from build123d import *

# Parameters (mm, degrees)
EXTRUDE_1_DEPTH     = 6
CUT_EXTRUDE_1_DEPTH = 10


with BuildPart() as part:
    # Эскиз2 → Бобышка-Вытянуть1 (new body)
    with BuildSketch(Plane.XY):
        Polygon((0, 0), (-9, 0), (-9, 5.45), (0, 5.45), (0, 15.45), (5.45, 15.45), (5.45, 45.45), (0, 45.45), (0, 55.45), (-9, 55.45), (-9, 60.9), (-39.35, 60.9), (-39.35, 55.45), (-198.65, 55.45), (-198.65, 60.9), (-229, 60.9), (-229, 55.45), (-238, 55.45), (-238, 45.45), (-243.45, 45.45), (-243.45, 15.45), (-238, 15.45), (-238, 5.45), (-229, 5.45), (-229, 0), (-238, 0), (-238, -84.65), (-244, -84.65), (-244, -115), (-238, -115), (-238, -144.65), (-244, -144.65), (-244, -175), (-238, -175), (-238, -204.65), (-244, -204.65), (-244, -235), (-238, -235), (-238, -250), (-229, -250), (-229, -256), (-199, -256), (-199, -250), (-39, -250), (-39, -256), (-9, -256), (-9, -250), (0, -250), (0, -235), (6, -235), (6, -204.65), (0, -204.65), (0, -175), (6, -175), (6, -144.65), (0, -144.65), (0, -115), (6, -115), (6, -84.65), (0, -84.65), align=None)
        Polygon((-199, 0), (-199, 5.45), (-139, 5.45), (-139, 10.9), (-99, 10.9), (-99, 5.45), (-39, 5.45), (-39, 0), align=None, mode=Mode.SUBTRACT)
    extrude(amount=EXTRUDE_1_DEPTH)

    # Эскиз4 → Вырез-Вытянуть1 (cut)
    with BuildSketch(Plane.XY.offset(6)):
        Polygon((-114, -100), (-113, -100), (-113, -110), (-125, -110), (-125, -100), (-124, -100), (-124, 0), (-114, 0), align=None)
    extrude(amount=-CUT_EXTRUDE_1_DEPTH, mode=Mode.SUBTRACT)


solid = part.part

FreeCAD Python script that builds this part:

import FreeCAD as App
import Part
import Sketcher
from FreeCAD import Vector

doc = App.newDocument("Part")
body = doc.addObject("PartDesign::Body", "Body")

# Sketch on XY plane
sketch1 = body.newObject("Sketcher::SketchObject", "Sketch")
sketch1.AttachmentSupport = (doc.getObject("XY_Plane"), [""])
sketch1.MapMode = "FlatFace"
sketch1.addGeometry([
    Part.LineSegment(Vector(0, 0, 0), Vector(-9, 0, 0)),  # 0
    Part.LineSegment(Vector(-9, 0, 0), Vector(-9, 5, 0)),  # 1
    Part.LineSegment(Vector(-9, 5, 0), Vector(0, 5, 0)),  # 2
    Part.LineSegment(Vector(0, 5, 0), Vector(0, 15, 0)),  # 3
    Part.LineSegment(Vector(0, 15, 0), Vector(5, 15, 0)),  # 4
    Part.LineSegment(Vector(5, 15, 0), Vector(5, 45, 0)),  # 5
    Part.LineSegment(Vector(5, 45, 0), Vector(0, 45, 0)),  # 6
    Part.LineSegment(Vector(0, 45, 0), Vector(0, 55, 0)),  # 7
    Part.LineSegment(Vector(0, 55, 0), Vector(-9, 55, 0)),  # 8
    Part.LineSegment(Vector(-9, 55, 0), Vector(-9, 61, 0)),  # 9
    Part.LineSegment(Vector(-9, 61, 0), Vector(-39, 61, 0)),  # 10
    Part.LineSegment(Vector(-39, 61, 0), Vector(-39, 55, 0)),  # 11
    Part.LineSegment(Vector(-39, 55, 0), Vector(-199, 55, 0)),  # 12
    Part.LineSegment(Vector(-199, 55, 0), Vector(-199, 61, 0)),  # 13
    Part.LineSegment(Vector(-199, 61, 0), Vector(-229, 61, 0)),  # 14
    Part.LineSegment(Vector(-229, 61, 0), Vector(-229, 55, 0)),  # 15
    Part.LineSegment(Vector(-229, 55, 0), Vector(-238, 55, 0)),  # 16
    Part.LineSegment(Vector(-238, 55, 0), Vector(-238, 45, 0)),  # 17
    Part.LineSegment(Vector(-238, 45, 0), Vector(-243, 45, 0)),  # 18
    Part.LineSegment(Vector(-243, 45, 0), Vector(-243, 15, 0)),  # 19
    Part.LineSegment(Vector(-243, 15, 0), Vector(-238, 15, 0)),  # 20
    Part.LineSegment(Vector(-238, 15, 0), Vector(-238, 5, 0)),  # 21
    Part.LineSegment(Vector(-238, 5, 0), Vector(-229, 5, 0)),  # 22
    Part.LineSegment(Vector(-229, 5, 0), Vector(-229, 0, 0)),  # 23
    Part.LineSegment(Vector(-229, 0, 0), Vector(-238, 0, 0)),  # 24
    Part.LineSegment(Vector(-238, 0, 0), Vector(-238, -85, 0)),  # 25
    Part.LineSegment(Vector(-238, -85, 0), Vector(-244, -85, 0)),  # 26
    Part.LineSegment(Vector(-244, -85, 0), Vector(-244, -115, 0)),  # 27
    Part.LineSegment(Vector(-244, -115, 0), Vector(-238, -115, 0)),  # 28
    Part.LineSegment(Vector(-238, -115, 0), Vector(-238, -145, 0)),  # 29
    Part.LineSegment(Vector(-238, -145, 0), Vector(-244, -145, 0)),  # 30
    Part.LineSegment(Vector(-244, -145, 0), Vector(-244, -175, 0)),  # 31
    Part.LineSegment(Vector(-244, -175, 0), Vector(-238, -175, 0)),  # 32
    Part.LineSegment(Vector(-238, -175, 0), Vector(-238, -205, 0)),  # 33
    Part.LineSegment(Vector(-238, -205, 0), Vector(-244, -205, 0)),  # 34
    Part.LineSegment(Vector(-244, -205, 0), Vector(-244, -235, 0)),  # 35
    Part.LineSegment(Vector(-244, -235, 0), Vector(-238, -235, 0)),  # 36
    Part.LineSegment(Vector(-238, -235, 0), Vector(-238, -250, 0)),  # 37
    Part.LineSegment(Vector(-238, -250, 0), Vector(-229, -250, 0)),  # 38
    Part.LineSegment(Vector(-229, -250, 0), Vector(-229, -256, 0)),  # 39
    Part.LineSegment(Vector(-229, -256, 0), Vector(-199, -256, 0)),  # 40
    Part.LineSegment(Vector(-199, -256, 0), Vector(-199, -250, 0)),  # 41
    Part.LineSegment(Vector(-199, -250, 0), Vector(-39, -250, 0)),  # 42
    Part.LineSegment(Vector(-39, -250, 0), Vector(-39, -256, 0)),  # 43
    Part.LineSegment(Vector(-39, -256, 0), Vector(-9, -256, 0)),  # 44
    Part.LineSegment(Vector(-9, -256, 0), Vector(-9, -250, 0)),  # 45
    Part.LineSegment(Vector(-9, -250, 0), Vector(0, -250, 0)),  # 46
    Part.LineSegment(Vector(0, -250, 0), Vector(0, -235, 0)),  # 47
    Part.LineSegment(Vector(0, -235, 0), Vector(6, -235, 0)),  # 48
    Part.LineSegment(Vector(6, -235, 0), Vector(6, -205, 0)),  # 49
    Part.LineSegment(Vector(6, -205, 0), Vector(0, -205, 0)),  # 50
    Part.LineSegment(Vector(0, -205, 0), Vector(0, -175, 0)),  # 51
    Part.LineSegment(Vector(0, -175, 0), Vector(6, -175, 0)),  # 52
    Part.LineSegment(Vector(6, -175, 0), Vector(6, -145, 0)),  # 53
    Part.LineSegment(Vector(6, -145, 0), Vector(0, -145, 0)),  # 54
    Part.LineSegment(Vector(0, -145, 0), Vector(0, -115, 0)),  # 55
    Part.LineSegment(Vector(0, -115, 0), Vector(6, -115, 0)),  # 56
    Part.LineSegment(Vector(6, -115, 0), Vector(6, -85, 0)),  # 57
    Part.LineSegment(Vector(6, -85, 0), Vector(0, -85, 0)),  # 58
    Part.LineSegment(Vector(0, -85, 0), Vector(0, 0, 0)),  # 59
    Part.LineSegment(Vector(-39, 0, 0), Vector(-199, 0, 0)),  # 60
    Part.LineSegment(Vector(-199, 0, 0), Vector(-199, 5, 0)),  # 61
    Part.LineSegment(Vector(-199, 5, 0), Vector(-139, 5, 0)),  # 62
    Part.LineSegment(Vector(-139, 5, 0), Vector(-139, 11, 0)),  # 63
    Part.LineSegment(Vector(-139, 11, 0), Vector(-99, 11, 0)),  # 64
    Part.LineSegment(Vector(-99, 11, 0), Vector(-99, 5, 0)),  # 65
    Part.LineSegment(Vector(-99, 5, 0), Vector(-39, 5, 0)),  # 66
    Part.LineSegment(Vector(-39, 5, 0), Vector(-39, 0, 0)),  # 67
], False)
sketch1.addConstraint([
    Sketcher.Constraint("Coincident", 0, 2, 1, 1),
    Sketcher.Constraint("Coincident", 1, 2, 2, 1),
    Sketcher.Constraint("Coincident", 2, 2, 3, 1),
    Sketcher.Constraint("Coincident", 3, 2, 4, 1),
    Sketcher.Constraint("Coincident", 4, 2, 5, 1),
    Sketcher.Constraint("Coincident", 5, 2, 6, 1),
    Sketcher.Constraint("Coincident", 6, 2, 7, 1),
    Sketcher.Constraint("Coincident", 7, 2, 8, 1),
    Sketcher.Constraint("Coincident", 8, 2, 9, 1),
    Sketcher.Constraint("Coincident", 9, 2, 10, 1),
    Sketcher.Constraint("Coincident", 10, 2, 11, 1),
    Sketcher.Constraint("Coincident", 11, 2, 12, 1),
    Sketcher.Constraint("Coincident", 12, 2, 13, 1),
    Sketcher.Constraint("Coincident", 13, 2, 14, 1),
    Sketcher.Constraint("Coincident", 14, 2, 15, 1),
    Sketcher.Constraint("Coincident", 15, 2, 16, 1),
    Sketcher.Constraint("Coincident", 16, 2, 17, 1),
    Sketcher.Constraint("Coincident", 17, 2, 18, 1),
    Sketcher.Constraint("Coincident", 18, 2, 19, 1),
    Sketcher.Constraint("Coincident", 19, 2, 20, 1),
    Sketcher.Constraint("Coincident", 20, 2, 21, 1),
    Sketcher.Constraint("Coincident", 21, 2, 22, 1),
    Sketcher.Constraint("Coincident", 22, 2, 23, 1),
    Sketcher.Constraint("Coincident", 23, 2, 24, 1),
    Sketcher.Constraint("Coincident", 24, 2, 25, 1),
    Sketcher.Constraint("Coincident", 25, 2, 26, 1),
    Sketcher.Constraint("Coincident", 26, 2, 27, 1),
    Sketcher.Constraint("Coincident", 27, 2, 28, 1),
    Sketcher.Constraint("Coincident", 28, 2, 29, 1),
    Sketcher.Constraint("Coincident", 29, 2, 30, 1),
    Sketcher.Constraint("Coincident", 30, 2, 31, 1),
    Sketcher.Constraint("Coincident", 31, 2, 32, 1),
    Sketcher.Constraint("Coincident", 32, 2, 33, 1),
    Sketcher.Constraint("Coincident", 33, 2, 34, 1),
    Sketcher.Constraint("Coincident", 34, 2, 35, 1),
    Sketcher.Constraint("Coincident", 35, 2, 36, 1),
    Sketcher.Constraint("Coincident", 36, 2, 37, 1),
    Sketcher.Constraint("Coincident", 37, 2, 38, 1),
    Sketcher.Constraint("Coincident", 38, 2, 39, 1),
    Sketcher.Constraint("Coincident", 39, 2, 40, 1),
    Sketcher.Constraint("Coincident", 40, 2, 41, 1),
    Sketcher.Constraint("Coincident", 41, 2, 42, 1),
    Sketcher.Constraint("Coincident", 42, 2, 43, 1),
    Sketcher.Constraint("Coincident", 43, 2, 44, 1),
    Sketcher.Constraint("Coincident", 44, 2, 45, 1),
    Sketcher.Constraint("Coincident", 45, 2, 46, 1),
    Sketcher.Constraint("Coincident", 46, 2, 47, 1),
    Sketcher.Constraint("Coincident", 47, 2, 48, 1),
    Sketcher.Constraint("Coincident", 48, 2, 49, 1),
    Sketcher.Constraint("Coincident", 49, 2, 50, 1),
    Sketcher.Constraint("Coincident", 50, 2, 51, 1),
    Sketcher.Constraint("Coincident", 51, 2, 52, 1),
    Sketcher.Constraint("Coincident", 52, 2, 53, 1),
    Sketcher.Constraint("Coincident", 53, 2, 54, 1),
    Sketcher.Constraint("Coincident", 54, 2, 55, 1),
    Sketcher.Constraint("Coincident", 55, 2, 56, 1),
    Sketcher.Constraint("Coincident", 56, 2, 57, 1),
    Sketcher.Constraint("Coincident", 57, 2, 58, 1),
    Sketcher.Constraint("Coincident", 58, 2, 59, 1),
    Sketcher.Constraint("Coincident", 59, 2, 0, 1),
    Sketcher.Constraint("Coincident", 60, 2, 61, 1),
    Sketcher.Constraint("Coincident", 61, 2, 62, 1),
    Sketcher.Constraint("Coincident", 62, 2, 63, 1),
    Sketcher.Constraint("Coincident", 63, 2, 64, 1),
    Sketcher.Constraint("Coincident", 64, 2, 65, 1),
    Sketcher.Constraint("Coincident", 65, 2, 66, 1),
    Sketcher.Constraint("Coincident", 66, 2, 67, 1),
    Sketcher.Constraint("Coincident", 67, 2, 60, 1),
    Sketcher.Constraint("Horizontal", 0),
    Sketcher.Constraint("Vertical", 1),
    Sketcher.Constraint("Horizontal", 2),
    Sketcher.Constraint("Vertical", 3),
    Sketcher.Constraint("Horizontal", 4),
    Sketcher.Constraint("Vertical", 5),
    Sketcher.Constraint("Horizontal", 6),
    Sketcher.Constraint("Vertical", 7),
    Sketcher.Constraint("Horizontal", 8),
    Sketcher.Constraint("Vertical", 9),
    Sketcher.Constraint("Horizontal", 10),
    Sketcher.Constraint("Vertical", 11),
    Sketcher.Constraint("Horizontal", 12),
    Sketcher.Constraint("Vertical", 13),
    Sketcher.Constraint("Horizontal", 14),
    Sketcher.Constraint("Vertical", 15),
    Sketcher.Constraint("Horizontal", 16),
    Sketcher.Constraint("Vertical", 17),
    Sketcher.Constraint("Horizontal", 18),
    Sketcher.Constraint("Vertical", 19),
    Sketcher.Constraint("Horizontal", 20),
    Sketcher.Constraint("Vertical", 21),
    Sketcher.Constraint("Horizontal", 22),
    Sketcher.Constraint("Vertical", 23),
    Sketcher.Constraint("Horizontal", 24),
    Sketcher.Constraint("Vertical", 25),
    Sketcher.Constraint("Horizontal", 26),
    Sketcher.Constraint("Vertical", 27),
    Sketcher.Constraint("Horizontal", 28),
    Sketcher.Constraint("Vertical", 29),
    Sketcher.Constraint("Horizontal", 30),
    Sketcher.Constraint("Vertical", 31),
    Sketcher.Constraint("Horizontal", 32),
    Sketcher.Constraint("Vertical", 33),
    Sketcher.Constraint("Horizontal", 34),
    Sketcher.Constraint("Vertical", 35),
    Sketcher.Constraint("Horizontal", 36),
    Sketcher.Constraint("Vertical", 37),
    Sketcher.Constraint("Horizontal", 38),
    Sketcher.Constraint("Vertical", 39),
    Sketcher.Constraint("Horizontal", 40),
    Sketcher.Constraint("Vertical", 41),
    Sketcher.Constraint("Horizontal", 42),
    Sketcher.Constraint("Vertical", 43),
    Sketcher.Constraint("Horizontal", 44),
    Sketcher.Constraint("Vertical", 45),
    Sketcher.Constraint("Horizontal", 46),
    Sketcher.Constraint("Vertical", 47),
    Sketcher.Constraint("Horizontal", 48),
    Sketcher.Constraint("Vertical", 49),
    Sketcher.Constraint("Horizontal", 50),
    Sketcher.Constraint("Vertical", 51),
    Sketcher.Constraint("Horizontal", 52),
    Sketcher.Constraint("Vertical", 53),
    Sketcher.Constraint("Horizontal", 54),
    Sketcher.Constraint("Vertical", 55),
    Sketcher.Constraint("Horizontal", 56),
    Sketcher.Constraint("Vertical", 57),
    Sketcher.Constraint("Horizontal", 58),
    Sketcher.Constraint("Vertical", 59),
    Sketcher.Constraint("Horizontal", 60),
    Sketcher.Constraint("Vertical", 61),
    Sketcher.Constraint("Horizontal", 62),
    Sketcher.Constraint("Vertical", 63),
    Sketcher.Constraint("Horizontal", 64),
    Sketcher.Constraint("Vertical", 65),
    Sketcher.Constraint("Horizontal", 66),
    Sketcher.Constraint("Vertical", 67),
    Sketcher.Constraint("Coincident", 59, 2, -1, 1),
    Sketcher.Constraint("PointOnObject", 2, 2, -2),
    Sketcher.Constraint("PointOnObject", 6, 2, -2),
    Sketcher.Constraint("PointOnObject", 23, 2, -1),
    Sketcher.Constraint("PointOnObject", 46, 2, -2),
    Sketcher.Constraint("PointOnObject", 50, 2, -2),
    Sketcher.Constraint("PointOnObject", 54, 2, -2),
    Sketcher.Constraint("PointOnObject", 60, 2, -1),
    Sketcher.Constraint("Horizontal", 8, 2, 11, 2),
    Sketcher.Constraint("Horizontal", 10, 2, 13, 2),
    Sketcher.Constraint("Horizontal", 12, 2, 15, 2),
    Sketcher.Constraint("Horizontal", 6, 2, 17, 2),
    Sketcher.Constraint("Horizontal", 4, 2, 19, 2),
    Sketcher.Constraint("Horizontal", 2, 2, 21, 2),
    Sketcher.Constraint("Horizontal", 38, 2, 41, 2),
    Sketcher.Constraint("Horizontal", 40, 2, 43, 2),
    Sketcher.Constraint("Horizontal", 42, 2, 45, 2),
    Sketcher.Constraint("Horizontal", 36, 2, 47, 2),
    Sketcher.Constraint("Horizontal", 34, 2, 49, 2),
    Sketcher.Constraint("Horizontal", 32, 2, 51, 2),
    Sketcher.Constraint("Horizontal", 30, 2, 53, 2),
    Sketcher.Constraint("Horizontal", 28, 2, 55, 2),
    Sketcher.Constraint("Horizontal", 26, 2, 57, 2),
    Sketcher.Constraint("Horizontal", 22, 2, 61, 2),
    Sketcher.Constraint("Horizontal", 62, 2, 65, 2),
    Sketcher.Constraint("Vertical", 1, 2, 8, 2),
    Sketcher.Constraint("Vertical", 17, 2, 20, 2),
    Sketcher.Constraint("Vertical", 15, 2, 22, 2),
    Sketcher.Constraint("Vertical", 21, 2, 24, 2),
    Sketcher.Constraint("Vertical", 25, 2, 28, 2),
    Sketcher.Constraint("Vertical", 27, 2, 30, 2),
    Sketcher.Constraint("Vertical", 29, 2, 32, 2),
    Sketcher.Constraint("Vertical", 31, 2, 34, 2),
    Sketcher.Constraint("Vertical", 33, 2, 36, 2),
    Sketcher.Constraint("Vertical", 23, 2, 38, 2),
    Sketcher.Constraint("Vertical", 9, 2, 44, 2),
    Sketcher.Constraint("Vertical", 49, 2, 52, 2),
    Sketcher.Constraint("Vertical", 53, 2, 56, 2),
    Sketcher.Constraint("Vertical", 41, 2, 60, 2),
    Sketcher.Constraint("Vertical", 43, 2, 66, 2),
    Sketcher.Constraint("Equal", 10, 14),
    Sketcher.Constraint("Equal", 8, 16),
    Sketcher.Constraint("Equal", 6, 18),
    Sketcher.Constraint("Equal", 40, 44),
    Sketcher.Constraint("Equal", 36, 48),
    Sketcher.Constraint("Equal", 62, 66),
    Sketcher.Constraint("Equal", 20, 1),
    Sketcher.Constraint("Equal", 44, 5),
    Sketcher.Constraint("Equal", 3, 7),
    Sketcher.Constraint("Equal", 1, 9),
    Sketcher.Constraint("Equal", 14, 27),
    Sketcher.Constraint("Equal", 27, 31),
    Sketcher.Constraint("Equal", 29, 33),
    Sketcher.Constraint("Equal", 31, 35),
    Sketcher.Constraint("Equal", 58, 39),
    Sketcher.Constraint("Equal", 61, 63),
    Sketcher.Constraint("DistanceX", 0, 2, 0, 1, 9.0),
    Sketcher.Constraint("DistanceX", 26, 2, 26, 1, 6.0),
    Sketcher.Constraint("DistanceX", 40, 1, 40, 2, 30.0),
    Sketcher.Constraint("DistanceX", 42, 1, 42, 2, 160.0),
    Sketcher.Constraint("DistanceX", 62, 1, 62, 2, 60.0),
    Sketcher.Constraint("DistanceY", 3, 1, 3, 2, 10.0),
    Sketcher.Constraint("DistanceY", 37, 2, 37, 1, 15.0),
    Sketcher.Constraint("DistanceX", 12, 2, 12, 1, 159.3),
    Sketcher.Constraint("DistanceY", 27, 2, -1, 1, 115.0),
    Sketcher.Constraint("DistanceY", 31, 2, -1, 1, 175.0),
    Sketcher.Constraint("DistanceX", 4, 1, 4, 2, 5.45),
])
pad1 = body.newObject("PartDesign::Pad", "Pad")
pad1.Profile = sketch1
pad1.Length = 6

# Sketch on XY plane
sketch2 = body.newObject("Sketcher::SketchObject", "Sketch001")
sketch2.AttachmentSupport = (doc.getObject("XY_Plane"), [""])
sketch2.MapMode = "FlatFace"
sketch2.AttachmentOffset = App.Placement(Vector(0, 0, 6), App.Rotation())
sketch2.addGeometry([
    Part.LineSegment(Vector(-113, -100, 0), Vector(-114, -100, 0)),  # 0
    Part.LineSegment(Vector(-114, -100, 0), Vector(-114, 0, 0)),  # 1
    Part.LineSegment(Vector(-114, 0, 0), Vector(-124, 0, 0)),  # 2
    Part.LineSegment(Vector(-124, 0, 0), Vector(-124, -100, 0)),  # 3
    Part.LineSegment(Vector(-124, -100, 0), Vector(-125, -100, 0)),  # 4
    Part.LineSegment(Vector(-125, -100, 0), Vector(-125, -110, 0)),  # 5
    Part.LineSegment(Vector(-125, -110, 0), Vector(-113, -110, 0)),  # 6
    Part.LineSegment(Vector(-113, -110, 0), Vector(-113, -100, 0)),  # 7
], False)
sketch2.addConstraint([
    Sketcher.Constraint("Coincident", 0, 2, 1, 1),
    Sketcher.Constraint("Coincident", 1, 2, 2, 1),
    Sketcher.Constraint("Coincident", 2, 2, 3, 1),
    Sketcher.Constraint("Coincident", 3, 2, 4, 1),
    Sketcher.Constraint("Coincident", 4, 2, 5, 1),
    Sketcher.Constraint("Coincident", 5, 2, 6, 1),
    Sketcher.Constraint("Coincident", 6, 2, 7, 1),
    Sketcher.Constraint("Coincident", 7, 2, 0, 1),
    Sketcher.Constraint("Horizontal", 0),
    Sketcher.Constraint("Vertical", 1),
    Sketcher.Constraint("Horizontal", 2),
    Sketcher.Constraint("Vertical", 3),
    Sketcher.Constraint("Horizontal", 4),
    Sketcher.Constraint("Vertical", 5),
    Sketcher.Constraint("Horizontal", 6),
    Sketcher.Constraint("Vertical", 7),
    Sketcher.Constraint("PointOnObject", 1, 2, -1),
    Sketcher.Constraint("Horizontal", 0, 2, 3, 2),
    Sketcher.Constraint("Equal", 0, 4),
    Sketcher.Constraint("Equal", 2, 5),
    Sketcher.Constraint("DistanceX", 0, 2, 0, 1, 1.0),
    Sketcher.Constraint("DistanceX", 2, 2, 2, 1, 10.0),
    Sketcher.Constraint("DistanceY", 1, 1, 1, 2, 100.0),
    Sketcher.Constraint("DistanceX", 0, 2, -1, 1, 114.0),
])
pocket1 = body.newObject("PartDesign::Pocket", "Pocket")
pocket1.Profile = sketch2
pocket1.Length = 10

doc.recompute()
